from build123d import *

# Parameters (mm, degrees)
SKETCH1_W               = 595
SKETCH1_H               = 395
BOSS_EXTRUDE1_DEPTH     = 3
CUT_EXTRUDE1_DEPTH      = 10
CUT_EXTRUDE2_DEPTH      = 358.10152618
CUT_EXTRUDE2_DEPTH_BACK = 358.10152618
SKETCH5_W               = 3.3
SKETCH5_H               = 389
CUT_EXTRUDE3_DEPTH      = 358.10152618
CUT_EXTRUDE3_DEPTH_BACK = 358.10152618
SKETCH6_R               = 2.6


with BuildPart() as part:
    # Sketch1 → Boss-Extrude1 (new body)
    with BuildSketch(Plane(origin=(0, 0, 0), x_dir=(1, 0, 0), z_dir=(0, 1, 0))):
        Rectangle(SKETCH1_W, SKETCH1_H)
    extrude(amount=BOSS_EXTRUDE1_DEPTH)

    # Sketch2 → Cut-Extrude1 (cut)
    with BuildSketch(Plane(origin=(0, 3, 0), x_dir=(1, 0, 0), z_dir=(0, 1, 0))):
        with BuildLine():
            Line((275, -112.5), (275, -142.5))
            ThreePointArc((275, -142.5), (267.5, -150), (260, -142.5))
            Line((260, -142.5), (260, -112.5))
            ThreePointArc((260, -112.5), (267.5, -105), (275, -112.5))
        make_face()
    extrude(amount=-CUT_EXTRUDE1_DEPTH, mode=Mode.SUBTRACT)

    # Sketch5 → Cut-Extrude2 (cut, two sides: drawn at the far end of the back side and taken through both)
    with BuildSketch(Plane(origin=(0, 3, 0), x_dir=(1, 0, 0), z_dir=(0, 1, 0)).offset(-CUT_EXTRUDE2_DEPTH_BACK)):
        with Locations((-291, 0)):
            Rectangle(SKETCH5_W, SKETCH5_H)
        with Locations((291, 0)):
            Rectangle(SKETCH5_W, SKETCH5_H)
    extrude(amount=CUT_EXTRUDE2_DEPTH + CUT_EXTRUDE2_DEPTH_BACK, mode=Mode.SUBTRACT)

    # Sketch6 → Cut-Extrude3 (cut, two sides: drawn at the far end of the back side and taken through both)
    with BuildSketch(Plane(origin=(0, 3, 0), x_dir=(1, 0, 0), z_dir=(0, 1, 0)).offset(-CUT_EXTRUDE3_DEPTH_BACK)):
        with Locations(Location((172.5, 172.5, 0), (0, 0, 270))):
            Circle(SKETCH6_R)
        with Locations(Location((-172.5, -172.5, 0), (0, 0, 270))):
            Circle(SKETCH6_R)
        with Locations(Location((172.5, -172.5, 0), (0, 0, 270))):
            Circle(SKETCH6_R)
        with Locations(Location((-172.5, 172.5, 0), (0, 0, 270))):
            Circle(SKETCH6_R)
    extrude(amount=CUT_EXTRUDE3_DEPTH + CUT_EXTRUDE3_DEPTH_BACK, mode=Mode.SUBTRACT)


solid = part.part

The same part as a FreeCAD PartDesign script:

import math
import FreeCAD as App
import Part
import Sketcher


def add_polygon(sketch, points):
    """Adds a closed chain of lines whose ends are joined by coincident constraints."""
    first, n = sketch.GeometryCount, len(points)
    for a, b in zip(points, points[1:] + points[:1]):
        sketch.addGeometry(Part.LineSegment(App.Vector(*a, 0), App.Vector(*b, 0)), False)
    for i in range(n):
        sketch.addConstraint(Sketcher.Constraint("Coincident", first + i, 2, first + (i + 1) % n, 1))

doc = App.newDocument("Part")
body = doc.addObject("PartDesign::Body", "Body")

# Sketch on XZ plane
sketch1 = body.newObject("Sketcher::SketchObject", "Sketch")
sketch1.AttachmentSupport = (doc.getObject("XZ_Plane"), [""])
sketch1.MapMode = "FlatFace"
add_polygon(sketch1, [(-298, -198), (-298, 198), (298, 198), (298, -198)])  # lines 0-3
sketch1.addConstraint(Sketcher.Constraint("Vertical", 0))
sketch1.addConstraint(Sketcher.Constraint("Horizontal", 1))
sketch1.addConstraint(Sketcher.Constraint("Vertical", 2))
sketch1.addConstraint(Sketcher.Constraint("Horizontal", 3))
sketch1.addConstraint(Sketcher.Constraint("Symmetric", 0, 2, 2, 2, -1, 1))
sketch1.addConstraint(Sketcher.Constraint("DistanceX", 1, 1, 1, 2, 595.0))
sketch1.addConstraint(Sketcher.Constraint("DistanceY", 0, 1, 0, 2, 395.0))
pad1 = body.newObject("PartDesign::Pad", "Pad")
pad1.Profile = sketch1
pad1.Length = 3
pad1.Reversed = True

# Sketch on XZ plane
sketch2 = body.newObject("Sketcher::SketchObject", "Sketch001")
sketch2.AttachmentSupport = (doc.getObject("XZ_Plane"), [""])
sketch2.MapMode = "FlatFace"
sketch2.AttachmentOffset = App.Placement(App.Vector(0, 0, -3), App.Rotation())
sketch2.addGeometry(Part.LineSegment(App.Vector(275, 142, 0), App.Vector(275, 112, 0)), False)
sketch2.addGeometry(Part.ArcOfCircle(Part.Circle(App.Vector(268, 112, 0), App.Vector(0, 0, 1), 8), math.radians(180), math.radians(360)), False)
sketch2.addGeometry(Part.LineSegment(App.Vector(260, 112, 0), App.Vector(260, 142, 0)), False)
sketch2.addGeometry(Part.ArcOfCircle(Part.Circle(App.Vector(268, 142, 0), App.Vector(0, 0, 1), 8), math.radians(0), math.radians(180)), False)
sketch2.addConstraint(Sketcher.Constraint("Tangent", 0, 2, 1, 2))
sketch2.addConstraint(Sketcher.Constraint("Tangent", 1, 1, 2, 1))
sketch2.addConstraint(Sketcher.Constraint("Tangent", 2, 2, 3, 2))
sketch2.addConstraint(Sketcher.Constraint("Tangent", 3, 1, 0, 1))
sketch2.addConstraint(Sketcher.Constraint("Vertical", 0))
sketch2.addConstraint(Sketcher.Constraint("Vertical", 2))
sketch2.addConstraint(Sketcher.Constraint("Radius", 1, 7.5))
sketch2.addConstraint(Sketcher.Constraint("DistanceY", 0, 2, 0, 1, 30.0))
sketch2.addConstraint(Sketcher.Constraint("DistanceX", -1, 1, 0, 2, 275.0))
sketch2.addConstraint(Sketcher.Constraint("DistanceY", -1, 1, 1, 3, 112.5))
pocket1 = body.newObject("PartDesign::Pocket", "Pocket")
pocket1.Profile = sketch2
pocket1.Length = 10
pocket1.Reversed = True

# Sketch on XZ plane
sketch3 = body.newObject("Sketcher::SketchObject", "Sketch002")
sketch3.AttachmentSupport = (doc.getObject("XZ_Plane"), [""])
sketch3.MapMode = "FlatFace"
sketch3.AttachmentOffset = App.Placement(App.Vector(0, 0, -3), App.Rotation())
add_polygon(sketch3, [(-292.6, -194.5), (-292.6, 194.5), (-289.4, 194.5), (-289.4, -194.5)])  # lines 0-3
add_polygon(sketch3, [(289.4, -194.5), (289.4, 194.5), (292.6, 194.5), (292.6, -194.5)])  # lines 4-7
sketch3.addConstraint(Sketcher.Constraint("Vertical", 0))
sketch3.addConstraint(Sketcher.Constraint("Horizontal", 1))
sketch3.addConstraint(Sketcher.Constraint("Vertical", 2))
sketch3.addConstraint(Sketcher.Constraint("Horizontal", 3))
sketch3.addConstraint(Sketcher.Constraint("Vertical", 4))
sketch3.addConstraint(Sketcher.Constraint("Horizontal", 5))
sketch3.addConstraint(Sketcher.Constraint("Vertical", 6))
sketch3.addConstraint(Sketcher.Constraint("Horizontal", 7))
sketch3.addConstraint(Sketcher.Constraint("Symmetric", 2, 2, 4, 2, -1, 1))
sketch3.addConstraint(Sketcher.Constraint("Symmetric", 0, 2, 6, 2, -1, 1))
sketch3.addConstraint(Sketcher.Constraint("Horizontal", 1, 2, 4, 2))
sketch3.addConstraint(Sketcher.Constraint("DistanceY", 0, 1, 0, 2, 389.0))
sketch3.addConstraint(Sketcher.Constraint("DistanceX", 1, 1, 1, 2, 3.3))
sketch3.addConstraint(Sketcher.Constraint("DistanceX", 0, 2, 4, 2, 582.0))
pocket2 = body.newObject("PartDesign::Pocket", "Pocket001")
pocket2.Profile = sketch3
pocket2.Type = "ThroughAll"
pocket2.Midplane = True

# Sketch on XZ plane
sketch4 = body.newObject("Sketcher::SketchObject", "Sketch003")
sketch4.AttachmentSupport = (doc.getObject("XZ_Plane"), [""])
sketch4.MapMode = "FlatFace"
sketch4.AttachmentOffset = App.Placement(App.Vector(0, 0, -3), App.Rotation())
sketch4.addGeometry(Part.Circle(App.Vector(172.5, -172.5, 0), App.Vector(0, 0, 1), 2.6), False)
sketch4.addGeometry(Part.Circle(App.Vector(-172.5, 172.5, 0), App.Vector(0, 0, 1), 2.6), False)
sketch4.addGeometry(Part.Circle(App.Vector(172.5, 172.5, 0), App.Vector(0, 0, 1), 2.6), False)
sketch4.addGeometry(Part.Circle(App.Vector(-172.5, -172.5, 0), App.Vector(0, 0, 1), 2.6), False)
sketch4.addConstraint(Sketcher.Constraint("Equal", 0, 1))
sketch4.addConstraint(Sketcher.Constraint("Equal", 1, 2))
sketch4.addConstraint(Sketcher.Constraint("Equal", 2, 3))
sketch4.addConstraint(Sketcher.Constraint("Symmetric", 0, 3, 1, 3, -1, 1))
sketch4.addConstraint(Sketcher.Constraint("Symmetric", 2, 3, 3, 3, -1, 1))
sketch4.addConstraint(Sketcher.Constraint("Symmetric", 1, 3, 2, 3, -2))
sketch4.addConstraint(Sketcher.Constraint("Diameter", 0, 5.2))
sketch4.addConstraint(Sketcher.Constraint("DistanceX", 1, 3, 0, 3, 345.0))
sketch4.addConstraint(Sketcher.Constraint("DistanceY", 0, 3, 1, 3, 345.0))
pocket3 = body.newObject("PartDesign::Pocket", "Pocket002")
pocket3.Profile = sketch4
pocket3.Type = "ThroughAll"
pocket3.Midplane = True

doc.recompute()
